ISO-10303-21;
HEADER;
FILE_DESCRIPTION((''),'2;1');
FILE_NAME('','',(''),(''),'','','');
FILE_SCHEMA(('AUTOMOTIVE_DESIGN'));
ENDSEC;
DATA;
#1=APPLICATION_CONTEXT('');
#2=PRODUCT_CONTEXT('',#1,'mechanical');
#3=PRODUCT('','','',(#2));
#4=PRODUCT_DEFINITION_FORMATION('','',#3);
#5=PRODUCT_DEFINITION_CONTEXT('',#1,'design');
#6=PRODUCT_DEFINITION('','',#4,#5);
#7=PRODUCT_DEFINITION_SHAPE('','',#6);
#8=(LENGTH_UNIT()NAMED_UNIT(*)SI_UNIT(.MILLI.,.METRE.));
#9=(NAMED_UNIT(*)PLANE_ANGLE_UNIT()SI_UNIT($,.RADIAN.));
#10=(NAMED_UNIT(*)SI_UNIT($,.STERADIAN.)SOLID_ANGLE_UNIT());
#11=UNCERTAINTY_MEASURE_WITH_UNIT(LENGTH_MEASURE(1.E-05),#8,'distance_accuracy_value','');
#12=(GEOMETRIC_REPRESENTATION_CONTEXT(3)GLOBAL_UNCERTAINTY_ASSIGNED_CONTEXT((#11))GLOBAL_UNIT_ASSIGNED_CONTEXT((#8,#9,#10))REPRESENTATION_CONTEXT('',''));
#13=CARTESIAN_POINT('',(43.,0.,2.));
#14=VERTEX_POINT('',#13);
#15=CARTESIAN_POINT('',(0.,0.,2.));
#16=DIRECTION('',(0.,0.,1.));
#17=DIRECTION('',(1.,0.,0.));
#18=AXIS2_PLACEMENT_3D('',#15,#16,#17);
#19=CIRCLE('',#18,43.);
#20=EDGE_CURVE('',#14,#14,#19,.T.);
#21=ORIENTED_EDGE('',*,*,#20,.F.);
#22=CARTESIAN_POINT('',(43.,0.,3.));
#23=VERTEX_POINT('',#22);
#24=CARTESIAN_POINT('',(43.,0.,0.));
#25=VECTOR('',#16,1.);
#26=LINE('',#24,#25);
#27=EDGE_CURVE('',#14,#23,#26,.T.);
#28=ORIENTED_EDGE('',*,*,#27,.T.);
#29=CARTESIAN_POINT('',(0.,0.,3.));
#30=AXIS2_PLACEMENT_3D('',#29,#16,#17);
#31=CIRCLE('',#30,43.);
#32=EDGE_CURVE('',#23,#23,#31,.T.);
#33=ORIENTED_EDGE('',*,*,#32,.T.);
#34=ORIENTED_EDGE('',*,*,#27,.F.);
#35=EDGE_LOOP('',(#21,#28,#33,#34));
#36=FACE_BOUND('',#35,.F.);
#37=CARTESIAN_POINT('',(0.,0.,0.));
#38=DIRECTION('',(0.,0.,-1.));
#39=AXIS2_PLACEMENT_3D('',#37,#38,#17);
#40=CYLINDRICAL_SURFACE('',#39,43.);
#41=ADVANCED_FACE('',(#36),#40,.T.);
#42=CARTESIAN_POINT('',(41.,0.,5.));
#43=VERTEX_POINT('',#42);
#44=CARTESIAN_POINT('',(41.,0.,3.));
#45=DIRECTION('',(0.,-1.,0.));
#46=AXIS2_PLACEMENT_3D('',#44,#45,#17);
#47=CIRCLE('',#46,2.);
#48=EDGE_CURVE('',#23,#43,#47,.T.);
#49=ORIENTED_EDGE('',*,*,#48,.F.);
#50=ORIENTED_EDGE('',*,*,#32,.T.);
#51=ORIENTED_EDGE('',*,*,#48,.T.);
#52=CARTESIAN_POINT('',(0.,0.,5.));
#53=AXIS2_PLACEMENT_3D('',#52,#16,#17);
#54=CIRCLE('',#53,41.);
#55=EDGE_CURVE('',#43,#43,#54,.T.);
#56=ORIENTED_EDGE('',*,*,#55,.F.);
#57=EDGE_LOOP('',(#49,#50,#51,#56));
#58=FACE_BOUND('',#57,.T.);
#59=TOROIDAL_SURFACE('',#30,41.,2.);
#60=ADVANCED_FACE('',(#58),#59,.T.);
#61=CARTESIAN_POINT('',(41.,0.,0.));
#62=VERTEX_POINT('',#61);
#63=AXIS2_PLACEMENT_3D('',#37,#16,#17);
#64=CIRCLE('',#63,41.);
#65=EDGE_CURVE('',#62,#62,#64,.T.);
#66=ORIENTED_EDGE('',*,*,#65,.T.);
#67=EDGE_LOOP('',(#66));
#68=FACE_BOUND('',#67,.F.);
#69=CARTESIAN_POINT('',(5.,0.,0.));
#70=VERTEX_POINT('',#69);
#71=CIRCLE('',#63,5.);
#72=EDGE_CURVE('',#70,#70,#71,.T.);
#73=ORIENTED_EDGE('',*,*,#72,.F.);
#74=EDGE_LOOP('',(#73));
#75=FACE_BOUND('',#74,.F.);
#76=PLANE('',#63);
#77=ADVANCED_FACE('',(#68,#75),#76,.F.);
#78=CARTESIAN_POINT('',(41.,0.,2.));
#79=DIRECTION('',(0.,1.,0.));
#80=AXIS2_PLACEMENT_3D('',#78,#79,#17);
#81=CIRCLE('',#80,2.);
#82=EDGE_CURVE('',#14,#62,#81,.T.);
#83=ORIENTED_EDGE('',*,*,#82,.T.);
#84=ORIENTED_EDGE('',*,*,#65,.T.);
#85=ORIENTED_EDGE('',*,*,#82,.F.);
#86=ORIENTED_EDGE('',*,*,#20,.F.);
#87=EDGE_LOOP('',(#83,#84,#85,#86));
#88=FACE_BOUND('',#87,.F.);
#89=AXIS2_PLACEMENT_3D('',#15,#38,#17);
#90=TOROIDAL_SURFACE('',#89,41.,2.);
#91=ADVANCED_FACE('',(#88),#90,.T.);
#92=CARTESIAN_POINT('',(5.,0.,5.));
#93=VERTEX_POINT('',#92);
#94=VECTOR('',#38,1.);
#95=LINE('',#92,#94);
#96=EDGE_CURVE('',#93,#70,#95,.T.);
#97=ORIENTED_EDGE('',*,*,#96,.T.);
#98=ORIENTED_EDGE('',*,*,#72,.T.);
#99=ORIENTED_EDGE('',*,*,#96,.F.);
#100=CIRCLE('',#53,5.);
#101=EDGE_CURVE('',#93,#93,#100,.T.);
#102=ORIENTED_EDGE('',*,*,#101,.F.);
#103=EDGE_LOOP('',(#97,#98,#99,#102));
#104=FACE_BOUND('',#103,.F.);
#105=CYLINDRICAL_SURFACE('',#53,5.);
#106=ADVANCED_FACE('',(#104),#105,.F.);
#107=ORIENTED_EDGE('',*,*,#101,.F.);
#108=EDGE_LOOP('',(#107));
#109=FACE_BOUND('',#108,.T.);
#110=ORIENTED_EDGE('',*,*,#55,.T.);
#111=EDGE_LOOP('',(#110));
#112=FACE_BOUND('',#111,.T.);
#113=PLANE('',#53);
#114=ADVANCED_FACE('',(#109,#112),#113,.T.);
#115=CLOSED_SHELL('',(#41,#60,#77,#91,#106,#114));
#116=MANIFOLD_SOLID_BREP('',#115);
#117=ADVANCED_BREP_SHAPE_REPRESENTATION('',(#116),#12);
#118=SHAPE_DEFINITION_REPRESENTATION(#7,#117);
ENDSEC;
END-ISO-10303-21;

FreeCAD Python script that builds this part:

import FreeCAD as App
import Part
import Sketcher
from FreeCAD import Vector
Q = App.Units.Quantity


def edges_at(feature, points):
    """Names of the edges that pass closest to the given points."""
    edges = feature.Shape.Edges
    near = lambda p: min(range(len(edges)), key=lambda i: edges[i].distToShape(Part.Vertex(*p))[0])
    return sorted({f"Edge{near(p) + 1}" for p in points})

doc = App.newDocument("Part")
body = doc.addObject("PartDesign::Body", "Body")

sketch1 = body.newObject("Sketcher::SketchObject", "Sketch")
sketch1.AttachmentSupport = (doc.getObject("XY_Plane"), [""])
sketch1.MapMode = "FlatFace"
sketch1.addGeometry(Part.Circle(Vector(0, 0, 0), Vector(0, 0, 1), 43), False)
sketch1.addConstraint(Sketcher.Constraint("Coincident", 0, 3, -1, 1))
sketch1.addConstraint(Sketcher.Constraint("Diameter", 0, Q("86 mm")))
pad1 = body.newObject("PartDesign::Pad", "Pad")
pad1.Profile = sketch1
pad1.Length = 5

sketch2 = body.newObject("Sketcher::SketchObject", "Sketch001")
sketch2.AttachmentSupport = (doc.getObject("XY_Plane"), [""])
sketch2.MapMode = "FlatFace"
sketch2.AttachmentOffset = App.Placement(Vector(0, 0, 5), App.Rotation())
sketch2.addGeometry(Part.Circle(Vector(0, 0, 0), Vector(0, 0, 1), 5), False)
sketch2.addConstraint(Sketcher.Constraint("Coincident", 0, 3, -1, 1))
sketch2.addConstraint(Sketcher.Constraint("Diameter", 0, Q("10 mm")))
pocket1 = body.newObject("PartDesign::Pocket", "Pocket")
pocket1.Profile = sketch2
pocket1.Type = "ThroughAll"
doc.recompute()

fillet = body.newObject("PartDesign::Fillet", "Fillet")
fillet.Base = (pocket1, edges_at(pocket1, [(-43, 0, 0), (-43, 0, 5)]))
fillet.Radius = 2

doc.recompute()
